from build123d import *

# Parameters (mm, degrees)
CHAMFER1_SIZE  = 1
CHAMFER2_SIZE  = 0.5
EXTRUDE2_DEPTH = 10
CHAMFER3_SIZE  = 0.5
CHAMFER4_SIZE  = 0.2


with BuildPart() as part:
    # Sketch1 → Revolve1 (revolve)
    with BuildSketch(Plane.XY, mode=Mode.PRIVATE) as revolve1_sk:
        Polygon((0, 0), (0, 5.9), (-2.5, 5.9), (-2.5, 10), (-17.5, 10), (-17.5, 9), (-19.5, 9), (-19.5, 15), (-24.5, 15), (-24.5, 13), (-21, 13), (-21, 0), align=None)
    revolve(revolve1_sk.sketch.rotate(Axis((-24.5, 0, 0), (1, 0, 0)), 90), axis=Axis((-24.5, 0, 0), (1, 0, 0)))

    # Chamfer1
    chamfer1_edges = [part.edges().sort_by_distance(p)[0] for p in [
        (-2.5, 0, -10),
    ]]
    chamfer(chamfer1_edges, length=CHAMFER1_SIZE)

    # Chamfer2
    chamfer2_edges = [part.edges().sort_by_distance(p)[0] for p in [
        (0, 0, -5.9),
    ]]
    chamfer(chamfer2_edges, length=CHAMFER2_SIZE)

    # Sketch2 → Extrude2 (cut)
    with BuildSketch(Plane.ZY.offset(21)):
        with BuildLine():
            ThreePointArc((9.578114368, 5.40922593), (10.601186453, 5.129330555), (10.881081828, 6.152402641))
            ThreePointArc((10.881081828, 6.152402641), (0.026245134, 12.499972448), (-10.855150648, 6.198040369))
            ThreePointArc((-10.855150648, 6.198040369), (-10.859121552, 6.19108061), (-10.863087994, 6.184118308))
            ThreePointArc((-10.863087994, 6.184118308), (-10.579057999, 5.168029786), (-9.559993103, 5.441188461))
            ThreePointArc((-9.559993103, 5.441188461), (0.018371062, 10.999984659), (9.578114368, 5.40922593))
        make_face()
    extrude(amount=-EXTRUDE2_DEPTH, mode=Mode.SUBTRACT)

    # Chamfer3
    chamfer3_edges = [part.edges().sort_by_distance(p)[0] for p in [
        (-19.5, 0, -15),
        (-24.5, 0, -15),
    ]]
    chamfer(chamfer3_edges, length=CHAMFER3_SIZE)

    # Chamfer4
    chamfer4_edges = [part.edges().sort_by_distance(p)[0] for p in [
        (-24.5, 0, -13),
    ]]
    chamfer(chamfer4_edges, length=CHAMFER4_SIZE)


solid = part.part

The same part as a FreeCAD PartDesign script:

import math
import FreeCAD as App
import Part
import Sketcher

V = App.Vector
Q = App.Units.Quantity


def edges_at(feature, points):
    """Names of the edges that pass closest to the given points."""
    edges = feature.Shape.Edges
    near = lambda p: min(range(len(edges)), key=lambda i: edges[i].distToShape(Part.Vertex(*p))[0])
    return sorted({f"Edge{near(p) + 1}" for p in points})


def add_polygon(sketch, points):
    """Adds a closed chain of lines whose ends are joined by coincident constraints."""
    first, n = sketch.GeometryCount, len(points)
    for a, b in zip(points, points[1:] + points[:1]):
        sketch.addGeometry(Part.LineSegment(App.Vector(*a, 0), App.Vector(*b, 0)), False)
    for i in range(n):
        sketch.addConstraint(Sketcher.Constraint("Coincident", first + i, 2, first + (i + 1) % n, 1))

doc = App.newDocument("Part")
body = doc.addObject("PartDesign::Body", "Body")

# Sketch on XY plane
sketch1 = body.newObject("Sketcher::SketchObject", "Sketch")
sketch1.AttachmentSupport = (doc.getObject("XY_Plane"), [""])
sketch1.MapMode = "FlatFace"
add_polygon(sketch1, [(0, 0), (0, 5.9), (-2.5, 5.9), (-2.5, 10), (-17.5, 10), (-17.5, 9), (-19.5, 9), (-19.5, 15), (-24.5, 15), (-24.5, 13), (-21, 13), (-21, 0)])  # lines 0-11
sketch1.addConstraint([
    Sketcher.Constraint("Vertical", 0),
    Sketcher.Constraint("Horizontal", 1),
    Sketcher.Constraint("Vertical", 2),
    Sketcher.Constraint("Horizontal", 3),
    Sketcher.Constraint("Vertical", 4),
    Sketcher.Constraint("Horizontal", 5),
    Sketcher.Constraint("Vertical", 6),
    Sketcher.Constraint("Horizontal", 7),
    Sketcher.Constraint("Vertical", 8),
    Sketcher.Constraint("Horizontal", 9),
    Sketcher.Constraint("Vertical", 10),
    Sketcher.Constraint("Horizontal", 11),
    Sketcher.Constraint("Coincident", 11, 2, -1, 1),
    Sketcher.Constraint("Equal", 5, 8),
    Sketcher.Constraint("DistanceX", 3, 2, 3, 1, Q("15 mm")),
    Sketcher.Constraint("DistanceX", 5, 2, 5, 1, Q("2 mm")),
    Sketcher.Constraint("DistanceX", 7, 2, 7, 1, Q("5 mm")),
    Sketcher.Constraint("DistanceX", 11, 1, 11, 2, Q("21 mm")),
    Sketcher.Constraint("DistanceY", 4, 2, 4, 1, Q("1 mm")),
    Sketcher.Constraint("DistanceY", 6, 1, 6, 2, Q("6 mm")),
    Sketcher.Constraint("DistanceY", 10, 2, 10, 1, Q("13 mm")),
    Sketcher.Constraint("DistanceX", 1, 2, 1, 1, Q("2.5 mm")),
    Sketcher.Constraint("DistanceY", 0, 1, 0, 2, Q("5.9 mm")),
])
revolution = body.newObject("PartDesign::Revolution", "Revolution")
revolution.Profile = sketch1
revolution.ReferenceAxis = (sketch1, ["H_Axis"])
revolution.Angle = 360
doc.recompute()

chamfer = body.newObject("PartDesign::Chamfer", "Chamfer")
chamfer.Base = (revolution, edges_at(revolution, [(-2.5, 0, -10)]))
chamfer.Size = 1
doc.recompute()

chamfer2 = body.newObject("PartDesign::Chamfer", "Chamfer001")
chamfer2.Base = (chamfer, edges_at(chamfer, [(0, 0, -5.9)]))
chamfer2.Size = 0.5

# Sketch on YZ plane
sketch2 = body.newObject("Sketcher::SketchObject", "Sketch001")
sketch2.AttachmentSupport = (doc.getObject("YZ_Plane"), [""])
sketch2.MapMode = "FlatFace"
sketch2.AttachmentOffset = App.Placement(V(0, 0, -21), App.Rotation())
sketch2.addGeometry([
    Part.ArcOfCircle(Part.Circle(V(5.780814, 10.229598, 0), V(0, 0, 1), 0.750006), math.radians(60.300757), math.radians(240.300757)),  # 0
    Part.ArcOfCircle(Part.Circle(V(0, 0, 0), V(0, 0, 1), 12.5), math.radians(-60.274631), math.radians(60.515229)),  # 1
    Part.ArcOfCircle(Part.Circle(V(-0.000868, 0.001522, 0), V(0, 0, 1), 12.501752), math.radians(-60.348081), math.radians(-60.274635)),  # 2
    Part.ArcOfCircle(Part.Circle(V(5.819614, -10.207572, 0), V(0, 0, 1), 0.750043), math.radians(120.300757), math.radians(299.076525)),  # 3
    Part.ArcOfCircle(Part.Circle(V(0, 0, 0), V(0, 0, 1), 11), math.radians(-60.353096), math.radians(60.544475)),  # 4
], False)
sketch2.addConstraint([
    Sketcher.Constraint("Coincident", 0, 1, 1, 2),
    Sketcher.Constraint("Tangent", 1, 1, 2, 2),
    Sketcher.Constraint("Coincident", 2, 1, 3, 2),
    Sketcher.Constraint("Coincident", 3, 1, 4, 1),
    Sketcher.Constraint("Coincident", 4, 2, 0, 2),
    Sketcher.Constraint("Coincident", 1, 3, -1, 1),
    Sketcher.Constraint("Coincident", 4, 3, -1, 1),
    Sketcher.Constraint("Radius", 4, Q("11 mm")),
    Sketcher.Constraint("Radius", 1, Q("12.5 mm")),
    Sketcher.Constraint("Radius", 0, Q("0.750006 mm")),
    Sketcher.Constraint("Radius", 2, Q("12.501752 mm")),
    Sketcher.Constraint("Radius", 3, Q("0.750043 mm")),
    Sketcher.Constraint("DistanceY", -1, 1, 0, 3, Q("10.229598 mm")),
    Sketcher.Constraint("DistanceX", 0, 3, 3, 3, Q("0.0388 mm")),
    Sketcher.Constraint("DistanceY", 3, 3, -1, 1, Q("10.207572 mm")),
    Sketcher.Constraint("DistanceY", -1, 1, 0, 1, Q("10.881082 mm")),
    Sketcher.Constraint("DistanceX", -1, 1, 1, 1, Q("6.19804 mm")),
])
pocket1 = body.newObject("PartDesign::Pocket", "Pocket")
pocket1.Profile = sketch2
pocket1.Length = 10
pocket1.Reversed = True
doc.recompute()

chamfer3 = body.newObject("PartDesign::Chamfer", "Chamfer002")
chamfer3.Base = (pocket1, edges_at(pocket1, [(-19.5, 0, -15), (-24.5, 0, -15)]))
chamfer3.Size = 0.5
doc.recompute()

chamfer4 = body.newObject("PartDesign::Chamfer", "Chamfer003")
chamfer4.Base = (chamfer3, edges_at(chamfer3, [(-24.5, 0, -13)]))
chamfer4.Size = 0.2

doc.recompute()
